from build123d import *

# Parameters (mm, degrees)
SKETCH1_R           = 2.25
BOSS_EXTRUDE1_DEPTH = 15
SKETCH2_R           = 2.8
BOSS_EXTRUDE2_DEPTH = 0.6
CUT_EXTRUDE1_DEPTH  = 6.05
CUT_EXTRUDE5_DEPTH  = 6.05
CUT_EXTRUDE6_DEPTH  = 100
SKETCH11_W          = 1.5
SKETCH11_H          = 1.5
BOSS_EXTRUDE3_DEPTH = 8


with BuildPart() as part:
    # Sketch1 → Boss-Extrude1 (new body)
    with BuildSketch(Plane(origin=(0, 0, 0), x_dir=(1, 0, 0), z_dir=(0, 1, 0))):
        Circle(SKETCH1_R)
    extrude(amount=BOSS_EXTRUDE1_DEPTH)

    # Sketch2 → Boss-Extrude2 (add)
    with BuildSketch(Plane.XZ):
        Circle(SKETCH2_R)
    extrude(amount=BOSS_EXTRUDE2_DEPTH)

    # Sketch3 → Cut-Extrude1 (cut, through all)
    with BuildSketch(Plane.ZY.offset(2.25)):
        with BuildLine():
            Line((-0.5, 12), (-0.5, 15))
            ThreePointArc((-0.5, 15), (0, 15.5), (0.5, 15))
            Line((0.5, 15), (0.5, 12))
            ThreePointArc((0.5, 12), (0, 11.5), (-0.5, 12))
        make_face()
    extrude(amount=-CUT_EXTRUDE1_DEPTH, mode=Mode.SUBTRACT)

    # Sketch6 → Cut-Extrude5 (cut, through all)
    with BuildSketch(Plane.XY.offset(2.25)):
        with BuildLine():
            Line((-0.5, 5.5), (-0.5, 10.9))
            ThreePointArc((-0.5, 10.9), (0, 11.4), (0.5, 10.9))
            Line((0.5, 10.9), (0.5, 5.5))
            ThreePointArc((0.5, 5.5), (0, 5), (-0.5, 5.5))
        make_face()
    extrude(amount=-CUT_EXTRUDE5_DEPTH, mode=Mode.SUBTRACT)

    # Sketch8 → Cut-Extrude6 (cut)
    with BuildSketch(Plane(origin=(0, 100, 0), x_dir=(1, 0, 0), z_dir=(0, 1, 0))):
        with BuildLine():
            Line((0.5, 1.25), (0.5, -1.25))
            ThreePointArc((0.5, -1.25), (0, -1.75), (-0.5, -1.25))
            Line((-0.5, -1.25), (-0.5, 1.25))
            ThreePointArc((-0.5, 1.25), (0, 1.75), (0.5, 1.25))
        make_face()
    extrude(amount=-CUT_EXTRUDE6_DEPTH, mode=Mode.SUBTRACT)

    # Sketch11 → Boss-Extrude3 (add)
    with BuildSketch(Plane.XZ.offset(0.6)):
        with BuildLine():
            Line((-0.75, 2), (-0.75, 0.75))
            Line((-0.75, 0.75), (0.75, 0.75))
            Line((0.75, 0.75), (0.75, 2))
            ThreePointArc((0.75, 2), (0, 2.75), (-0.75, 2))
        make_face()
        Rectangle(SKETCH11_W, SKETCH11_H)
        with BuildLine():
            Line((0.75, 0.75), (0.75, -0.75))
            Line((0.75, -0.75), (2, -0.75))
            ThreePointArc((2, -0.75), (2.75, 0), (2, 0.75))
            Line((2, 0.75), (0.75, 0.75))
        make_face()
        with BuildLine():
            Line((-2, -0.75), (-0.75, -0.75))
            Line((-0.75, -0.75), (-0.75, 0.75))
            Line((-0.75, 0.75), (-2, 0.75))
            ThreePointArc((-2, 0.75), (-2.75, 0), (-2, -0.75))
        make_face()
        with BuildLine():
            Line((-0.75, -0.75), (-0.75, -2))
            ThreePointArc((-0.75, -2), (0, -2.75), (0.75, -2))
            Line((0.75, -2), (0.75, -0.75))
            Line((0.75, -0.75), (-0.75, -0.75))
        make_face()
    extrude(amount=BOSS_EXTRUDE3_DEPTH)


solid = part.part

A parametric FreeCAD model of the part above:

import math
import FreeCAD as App
import Part
import Sketcher
from FreeCAD import Vector

doc = App.newDocument("Part")
body = doc.addObject("PartDesign::Body", "Body")

# Sketch on XZ plane
sketch1 = body.newObject("Sketcher::SketchObject", "Sketch")
sketch1.AttachmentSupport = (doc.getObject("XZ_Plane"), [""])
sketch1.MapMode = "FlatFace"
sketch1.addGeometry(Part.Circle(Vector(0, 0, 0), Vector(0, 0, 1), 2.2), False)
sketch1.addConstraint([
    Sketcher.Constraint("Coincident", 0, 3, -1, 1),
    Sketcher.Constraint("Diameter", 0, 4.5),
])
pad1 = body.newObject("PartDesign::Pad", "Pad")
pad1.Profile = sketch1
pad1.Length = 15
pad1.Reversed = True

# Sketch on XZ plane
sketch2 = body.newObject("Sketcher::SketchObject", "Sketch001")
sketch2.AttachmentSupport = (doc.getObject("XZ_Plane"), [""])
sketch2.MapMode = "FlatFace"
sketch2.addGeometry(Part.Circle(Vector(0, 0, 0), Vector(0, 0, 1), 2.8), False)
sketch2.addConstraint([
    Sketcher.Constraint("Coincident", 0, 3, -1, 1),
    Sketcher.Constraint("Diameter", 0, 5.6),
])
pad2 = body.newObject("PartDesign::Pad", "Pad001")
pad2.Profile = sketch2
pad2.Length = 0.6

# Sketch on YZ plane
sketch3 = body.newObject("Sketcher::SketchObject", "Sketch002")
sketch3.AttachmentSupport = (doc.getObject("YZ_Plane"), [""])
sketch3.MapMode = "FlatFace"
sketch3.AttachmentOffset = App.Placement(Vector(0, 0, -2.25), App.Rotation())
sketch3.addGeometry([
    Part.LineSegment(Vector(15, -0.5, 0), Vector(12, -0.5, 0)),
    Part.ArcOfCircle(Part.Circle(Vector(12, 0, 0), Vector(0, 0, 1), 0.5), math.radians(90), math.radians(270)),
    Part.LineSegment(Vector(12, 0.5, 0), Vector(15, 0.5, 0)),
    Part.ArcOfCircle(Part.Circle(Vector(15, 0, 0), Vector(0, 0, 1), 0.5), math.radians(-90), math.radians(90)),
], False)
sketch3.addConstraint([
    Sketcher.Constraint("Tangent", 0, 2, 1, 2),
    Sketcher.Constraint("Tangent", 1, 1, 2, 1),
    Sketcher.Constraint("Tangent", 2, 2, 3, 2),
    Sketcher.Constraint("Tangent", 3, 1, 0, 1),
    Sketcher.Constraint("Horizontal", 0),
    Sketcher.Constraint("Horizontal", 2),
    Sketcher.Constraint("PointOnObject", 1, 3, -1),
    Sketcher.Constraint("Radius", 1, 0.5),
    Sketcher.Constraint("DistanceX", 0, 2, 0, 1, 3.0),
    Sketcher.Constraint("DistanceX", -1, 1, 1, 3, 12.0),
])
pocket1 = body.newObject("PartDesign::Pocket", "Pocket")
pocket1.Profile = sketch3
pocket1.Type = "ThroughAll"
pocket1.Reversed = True

# Sketch on XY plane
sketch4 = body.newObject("Sketcher::SketchObject", "Sketch003")
sketch4.AttachmentSupport = (doc.getObject("XY_Plane"), [""])
sketch4.MapMode = "FlatFace"
sketch4.AttachmentOffset = App.Placement(Vector(0, 0, 2.25), App.Rotation())
sketch4.addGeometry([
    Part.LineSegment(Vector(-0.5, 10.9, 0), Vector(-0.5, 5.5, 0)),
    Part.ArcOfCircle(Part.Circle(Vector(0, 5.5, 0), Vector(0, 0, 1), 0.5), math.radians(180), math.radians(360)),
    Part.LineSegment(Vector(0.5, 5.5, 0), Vector(0.5, 10.9, 0)),
    Part.ArcOfCircle(Part.Circle(Vector(0, 10.9, 0), Vector(0, 0, 1), 0.5), math.radians(0), math.radians(180)),
], False)
sketch4.addConstraint([
    Sketcher.Constraint("Tangent", 0, 2, 1, 1),
    Sketcher.Constraint("Tangent", 1, 2, 2, 1),
    Sketcher.Constraint("Tangent", 2, 2, 3, 1),
    Sketcher.Constraint("Tangent", 3, 2, 0, 1),
    Sketcher.Constraint("Vertical", 0),
    Sketcher.Constraint("Vertical", 2),
    Sketcher.Constraint("PointOnObject", 1, 3, -2),
    Sketcher.Constraint("Radius", 1, 0.5),
    Sketcher.Constraint("DistanceY", 0, 2, 0, 1, 5.4),
    Sketcher.Constraint("DistanceY", -1, 1, 1, 3, 5.5),
])
pocket2 = body.newObject("PartDesign::Pocket", "Pocket001")
pocket2.Profile = sketch4
pocket2.Type = "ThroughAll"

# Sketch on XZ plane
sketch5 = body.newObject("Sketcher::SketchObject", "Sketch004")
sketch5.AttachmentSupport = (doc.getObject("XZ_Plane"), [""])
sketch5.MapMode = "FlatFace"
sketch5.AttachmentOffset = App.Placement(Vector(0, 0, -100), App.Rotation())
sketch5.addGeometry([
    Part.LineSegment(Vector(0.5, 1.2, 0), Vector(0.5, -1.2, 0)),
    Part.ArcOfCircle(Part.Circle(Vector(0, -1.2, 0), Vector(0, 0, 1), 0.5), math.radians(180), math.radians(360)),
    Part.LineSegment(Vector(-0.5, -1.2, 0), Vector(-0.5, 1.2, 0)),
    Part.ArcOfCircle(Part.Circle(Vector(0, 1.2, 0), Vector(0, 0, 1), 0.5), math.radians(0), math.radians(180)),
], False)
sketch5.addConstraint([
    Sketcher.Constraint("Tangent", 0, 2, 1, 2),
    Sketcher.Constraint("Tangent", 1, 1, 2, 1),
    Sketcher.Constraint("Tangent", 2, 2, 3, 2),
    Sketcher.Constraint("Tangent", 3, 1, 0, 1),
    Sketcher.Constraint("Vertical", 0),
    Sketcher.Constraint("Vertical", 2),
    Sketcher.Constraint("Symmetric", 1, 3, 3, 3, -1, 1),
    Sketcher.Constraint("Radius", 1, 0.5),
    Sketcher.Constraint("DistanceY", 0, 2, 0, 1, 2.5),
])
pocket3 = body.newObject("PartDesign::Pocket", "Pocket002")
pocket3.Profile = sketch5
pocket3.Length = 100
pocket3.Reversed = True

# Sketch on XZ plane
sketch6 = body.newObject("Sketcher::SketchObject", "Sketch005")
sketch6.AttachmentSupport = (doc.getObject("XZ_Plane"), [""])
sketch6.MapMode = "FlatFace"
sketch6.AttachmentOffset = App.Placement(Vector(0, 0, 0.6), App.Rotation())
sketch6.addGeometry([
    Part.LineSegment(Vector(-0.8, 2, 0), Vector(-0.8, 0.8, 0)),  # 0
    Part.LineSegment(Vector(-0.8, 0.8, 0), Vector(-2, 0.8, 0)),  # 1
    Part.ArcOfCircle(Part.Circle(Vector(-2, 0, 0), Vector(0, 0, 1), 0.8), math.radians(90), math.radians(270)),  # 2
    Part.LineSegment(Vector(-2, -0.8, 0), Vector(-0.8, -0.8, 0)),  # 3
    Part.LineSegment(Vector(-0.8, -0.8, 0), Vector(-0.8, -2, 0)),  # 4
    Part.ArcOfCircle(Part.Circle(Vector(0, -2, 0), Vector(0, 0, 1), 0.8), math.radians(180), math.radians(360)),  # 5
    Part.LineSegment(Vector(0.8, -2, 0), Vector(0.8, -0.8, 0)),  # 6
    Part.LineSegment(Vector(0.8, -0.8, 0), Vector(2, -0.8, 0)),  # 7
    Part.ArcOfCircle(Part.Circle(Vector(2, 0, 0), Vector(0, 0, 1), 0.8), math.radians(-90), math.radians(90)),  # 8
    Part.LineSegment(Vector(2, 0.8, 0), Vector(0.8, 0.8, 0)),  # 9
    Part.LineSegment(Vector(0.8, 0.8, 0), Vector(0.8, 2, 0)),  # 10
    Part.ArcOfCircle(Part.Circle(Vector(0, 2, 0), Vector(0, 0, 1), 0.8), math.radians(0), math.radians(180)),  # 11
], False)
sketch6.addConstraint([
    Sketcher.Constraint("Coincident", 0, 2, 1, 1),
    Sketcher.Constraint("Tangent", 1, 2, 2, 1),
    Sketcher.Constraint("Tangent", 2, 2, 3, 1),
    Sketcher.Constraint("Coincident", 3, 2, 4, 1),
    Sketcher.Constraint("Tangent", 4, 2, 5, 1),
    Sketcher.Constraint("Tangent", 5, 2, 6, 1),
    Sketcher.Constraint("Coincident", 6, 2, 7, 1),
    Sketcher.Constraint("Tangent", 7, 2, 8, 1),
    Sketcher.Constraint("Tangent", 8, 2, 9, 1),
    Sketcher.Constraint("Coincident", 9, 2, 10, 1),
    Sketcher.Constraint("Tangent", 10, 2, 11, 1),
    Sketcher.Constraint("Tangent", 11, 2, 0, 1),
    Sketcher.Constraint("Vertical", 0),
    Sketcher.Constraint("Horizontal", 1),
    Sketcher.Constraint("Horizontal", 3),
    Sketcher.Constraint("Vertical", 4),
    Sketcher.Constraint("Vertical", 6),
    Sketcher.Constraint("Horizontal", 7),
    Sketcher.Constraint("Horizontal", 9),
    Sketcher.Constraint("Vertical", 10),
    Sketcher.Constraint("Equal", 2, 5),
    Sketcher.Constraint("Equal", 5, 8),
    Sketcher.Constraint("Equal", 8, 11),
    Sketcher.Constraint("Symmetric", 2, 3, 8, 3, -1, 1),
    Sketcher.Constraint("Symmetric", 5, 3, 11, 3, -1, 1),
    Sketcher.Constraint("Symmetric", 3, 2, 6, 2, -2),
    Sketcher.Constraint("Equal", 9, 0),
    Sketcher.Constraint("Radius", 2, 0.75),
    Sketcher.Constraint("DistanceX", 2, 3, -1, 1, 2.0),
])
pad3 = body.newObject("PartDesign::Pad", "Pad002")
pad3.Profile = sketch6
pad3.Length = 8

doc.recompute()
